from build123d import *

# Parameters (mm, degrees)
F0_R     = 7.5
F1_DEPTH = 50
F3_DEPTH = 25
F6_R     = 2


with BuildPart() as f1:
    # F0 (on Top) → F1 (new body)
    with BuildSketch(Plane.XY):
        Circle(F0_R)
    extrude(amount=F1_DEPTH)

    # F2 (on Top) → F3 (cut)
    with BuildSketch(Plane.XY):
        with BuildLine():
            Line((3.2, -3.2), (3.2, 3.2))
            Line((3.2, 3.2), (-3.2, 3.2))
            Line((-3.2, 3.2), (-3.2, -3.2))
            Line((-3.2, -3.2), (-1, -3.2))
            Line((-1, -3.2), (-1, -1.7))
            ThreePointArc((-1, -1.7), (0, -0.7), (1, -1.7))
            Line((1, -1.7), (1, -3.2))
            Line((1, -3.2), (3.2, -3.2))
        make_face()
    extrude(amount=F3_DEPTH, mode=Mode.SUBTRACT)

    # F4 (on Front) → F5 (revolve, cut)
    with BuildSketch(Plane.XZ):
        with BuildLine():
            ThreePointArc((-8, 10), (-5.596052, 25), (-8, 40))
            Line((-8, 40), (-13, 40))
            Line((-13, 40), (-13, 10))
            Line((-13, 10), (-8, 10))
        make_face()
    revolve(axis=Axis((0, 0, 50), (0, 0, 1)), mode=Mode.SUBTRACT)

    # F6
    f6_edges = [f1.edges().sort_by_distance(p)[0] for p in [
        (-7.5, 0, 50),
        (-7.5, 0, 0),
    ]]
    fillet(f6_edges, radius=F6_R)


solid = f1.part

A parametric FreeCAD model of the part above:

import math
import FreeCAD as App
import Part
import Sketcher
from FreeCAD import Vector
Q = App.Units.Quantity


def edges_at(feature, points):
    """Names of the edges that pass closest to the given points."""
    edges = feature.Shape.Edges
    near = lambda p: min(range(len(edges)), key=lambda i: edges[i].distToShape(Part.Vertex(*p))[0])
    return sorted({f"Edge{near(p) + 1}" for p in points})

doc = App.newDocument("Part")
params = doc.addObject("Spreadsheet::Sheet", "Params")
for row, (alias, value) in enumerate([
    ("sketch1_diameter", "15 mm"),
    ("pad1_length", "50 mm"),
    ("sketch2_radius", "1 mm"),
    ("sketch2_width", "6.4 mm"),
    ("sketch2_height", "1.5 mm"),
    ("pocket1_length", "25 mm"),
    ("sketch3_width", "5 mm"),
    ("sketch3_height", "30 mm"),
    ("groove_angle", "360 deg"),
    ("fillet_radius", "2 mm"),
], start=1):
    params.set(f"A{row}", alias)
    params.set(f"B{row}", "=" + value)
    params.setAlias(f"B{row}", alias)

body = doc.addObject("PartDesign::Body", "Body")

sketch1 = body.newObject("Sketcher::SketchObject", "Sketch")
sketch1.AttachmentSupport = (doc.getObject("XY_Plane"), [""])
sketch1.MapMode = "FlatFace"
sketch1.addGeometry(Part.Circle(Vector(0, 0, 0), Vector(0, 0, 1), 8), False)
sketch1.addConstraint([
    Sketcher.Constraint("Coincident", 0, 3, -1, 1),
    Sketcher.Constraint("Diameter", 0, Q("15 mm")),
])
sketch1.setExpression("Constraints[1]", "Params.sketch1_diameter")
pad1 = body.newObject("PartDesign::Pad", "Pad")
pad1.Profile = sketch1
pad1.setExpression("Length", "Params.pad1_length")

sketch2 = body.newObject("Sketcher::SketchObject", "Sketch001")
sketch2.AttachmentSupport = (doc.getObject("XY_Plane"), [""])
sketch2.MapMode = "FlatFace"
sketch2.addGeometry([
    Part.LineSegment(Vector(3.2, -3.2, 0), Vector(3.2, 3.2, 0)),
    Part.LineSegment(Vector(3.2, 3.2, 0), Vector(-3.2, 3.2, 0)),
    Part.LineSegment(Vector(-3.2, 3.2, 0), Vector(-3.2, -3.2, 0)),
    Part.LineSegment(Vector(-3.2, -3.2, 0), Vector(-1, -3.2, 0)),
    Part.LineSegment(Vector(-1, -3.2, 0), Vector(-1, -1.7, 0)),
    Part.ArcOfCircle(Part.Circle(Vector(0, -1.7, 0), Vector(0, 0, 1), 1), math.radians(0), math.radians(180)),
    Part.LineSegment(Vector(1, -1.7, 0), Vector(1, -3.2, 0)),
    Part.LineSegment(Vector(1, -3.2, 0), Vector(3.2, -3.2, 0)),
], False)
sketch2.addConstraint([
    Sketcher.Constraint("Coincident", 0, 2, 1, 1),
    Sketcher.Constraint("Coincident", 1, 2, 2, 1),
    Sketcher.Constraint("Coincident", 2, 2, 3, 1),
    Sketcher.Constraint("Coincident", 3, 2, 4, 1),
    Sketcher.Constraint("Tangent", 4, 2, 5, 2),
    Sketcher.Constraint("Tangent", 5, 1, 6, 1),
    Sketcher.Constraint("Coincident", 6, 2, 7, 1),
    Sketcher.Constraint("Coincident", 7, 2, 0, 1),
    Sketcher.Constraint("Vertical", 0),
    Sketcher.Constraint("Horizontal", 1),
    Sketcher.Constraint("Vertical", 2),
    Sketcher.Constraint("Horizontal", 3),
    Sketcher.Constraint("Vertical", 4),
    Sketcher.Constraint("Vertical", 6),
    Sketcher.Constraint("Horizontal", 7),
    Sketcher.Constraint("Symmetric", 0, 2, 2, 2, -1, 1),
    Sketcher.Constraint("Symmetric", 3, 2, 6, 2, -2),
    Sketcher.Constraint("Equal", 1, 0),
    Sketcher.Constraint("Radius", 5, Q("1 mm")),
    Sketcher.Constraint("DistanceX", 1, 2, 1, 1, Q("6.4 mm")),
    Sketcher.Constraint("DistanceY", 4, 1, 4, 2, Q("1.5 mm")),
])
sketch2.setExpression("Constraints[18]", "Params.sketch2_radius")
sketch2.setExpression("Constraints[19]", "Params.sketch2_width")
sketch2.setExpression("Constraints[20]", "Params.sketch2_height")
pocket1 = body.newObject("PartDesign::Pocket", "Pocket")
pocket1.Profile = sketch2
pocket1.setExpression("Length", "Params.pocket1_length")
pocket1.Reversed = True

sketch3 = body.newObject("Sketcher::SketchObject", "Sketch002")
sketch3.AttachmentSupport = (doc.getObject("XZ_Plane"), [""])
sketch3.MapMode = "FlatFace"
sketch3.addGeometry([
    Part.ArcOfCircle(Part.Circle(Vector(-54, 25, 0), Vector(0, 0, 1), 48), math.radians(-18), math.radians(18)),
    Part.LineSegment(Vector(-8, 40, 0), Vector(-13, 40, 0)),
    Part.LineSegment(Vector(-13, 40, 0), Vector(-13, 10, 0)),
    Part.LineSegment(Vector(-13, 10, 0), Vector(-8, 10, 0)),
], False)
sketch3.addConstraint([
    Sketcher.Constraint("Coincident", 0, 2, 1, 1),
    Sketcher.Constraint("Coincident", 1, 2, 2, 1),
    Sketcher.Constraint("Coincident", 2, 2, 3, 1),
    Sketcher.Constraint("Coincident", 3, 2, 0, 1),
    Sketcher.Constraint("Horizontal", 1),
    Sketcher.Constraint("Vertical", 2),
    Sketcher.Constraint("Horizontal", 3),
    Sketcher.Constraint("Vertical", 0, 2, 3, 2),
    Sketcher.Constraint("DistanceX", 1, 2, 1, 1, Q("5 mm")),
    Sketcher.Constraint("DistanceY", 2, 2, 2, 1, Q("30 mm")),
    Sketcher.Constraint("DistanceY", -1, 1, 0, 3, Q("25 mm")),
    Sketcher.Constraint("DistanceX", 0, 2, -1, 1, Q("8 mm")),
    Sketcher.Constraint("Radius", 0, Q("47.999991 mm")),
])
sketch3.setExpression("Constraints[8]", "Params.sketch3_width")
sketch3.setExpression("Constraints[9]", "Params.sketch3_height")
groove = body.newObject("PartDesign::Groove", "Groove")
groove.Profile = sketch3
groove.ReferenceAxis = (sketch3, ["V_Axis"])
groove.setExpression("Angle", "Params.groove_angle")
doc.recompute()

fillet = body.newObject("PartDesign::Fillet", "Fillet")
fillet.Base = (groove, edges_at(groove, [(-7.5, 0, 50), (-7.5, 0, 0)]))
fillet.setExpression("Radius", "Params.fillet_radius")

doc.recompute()
